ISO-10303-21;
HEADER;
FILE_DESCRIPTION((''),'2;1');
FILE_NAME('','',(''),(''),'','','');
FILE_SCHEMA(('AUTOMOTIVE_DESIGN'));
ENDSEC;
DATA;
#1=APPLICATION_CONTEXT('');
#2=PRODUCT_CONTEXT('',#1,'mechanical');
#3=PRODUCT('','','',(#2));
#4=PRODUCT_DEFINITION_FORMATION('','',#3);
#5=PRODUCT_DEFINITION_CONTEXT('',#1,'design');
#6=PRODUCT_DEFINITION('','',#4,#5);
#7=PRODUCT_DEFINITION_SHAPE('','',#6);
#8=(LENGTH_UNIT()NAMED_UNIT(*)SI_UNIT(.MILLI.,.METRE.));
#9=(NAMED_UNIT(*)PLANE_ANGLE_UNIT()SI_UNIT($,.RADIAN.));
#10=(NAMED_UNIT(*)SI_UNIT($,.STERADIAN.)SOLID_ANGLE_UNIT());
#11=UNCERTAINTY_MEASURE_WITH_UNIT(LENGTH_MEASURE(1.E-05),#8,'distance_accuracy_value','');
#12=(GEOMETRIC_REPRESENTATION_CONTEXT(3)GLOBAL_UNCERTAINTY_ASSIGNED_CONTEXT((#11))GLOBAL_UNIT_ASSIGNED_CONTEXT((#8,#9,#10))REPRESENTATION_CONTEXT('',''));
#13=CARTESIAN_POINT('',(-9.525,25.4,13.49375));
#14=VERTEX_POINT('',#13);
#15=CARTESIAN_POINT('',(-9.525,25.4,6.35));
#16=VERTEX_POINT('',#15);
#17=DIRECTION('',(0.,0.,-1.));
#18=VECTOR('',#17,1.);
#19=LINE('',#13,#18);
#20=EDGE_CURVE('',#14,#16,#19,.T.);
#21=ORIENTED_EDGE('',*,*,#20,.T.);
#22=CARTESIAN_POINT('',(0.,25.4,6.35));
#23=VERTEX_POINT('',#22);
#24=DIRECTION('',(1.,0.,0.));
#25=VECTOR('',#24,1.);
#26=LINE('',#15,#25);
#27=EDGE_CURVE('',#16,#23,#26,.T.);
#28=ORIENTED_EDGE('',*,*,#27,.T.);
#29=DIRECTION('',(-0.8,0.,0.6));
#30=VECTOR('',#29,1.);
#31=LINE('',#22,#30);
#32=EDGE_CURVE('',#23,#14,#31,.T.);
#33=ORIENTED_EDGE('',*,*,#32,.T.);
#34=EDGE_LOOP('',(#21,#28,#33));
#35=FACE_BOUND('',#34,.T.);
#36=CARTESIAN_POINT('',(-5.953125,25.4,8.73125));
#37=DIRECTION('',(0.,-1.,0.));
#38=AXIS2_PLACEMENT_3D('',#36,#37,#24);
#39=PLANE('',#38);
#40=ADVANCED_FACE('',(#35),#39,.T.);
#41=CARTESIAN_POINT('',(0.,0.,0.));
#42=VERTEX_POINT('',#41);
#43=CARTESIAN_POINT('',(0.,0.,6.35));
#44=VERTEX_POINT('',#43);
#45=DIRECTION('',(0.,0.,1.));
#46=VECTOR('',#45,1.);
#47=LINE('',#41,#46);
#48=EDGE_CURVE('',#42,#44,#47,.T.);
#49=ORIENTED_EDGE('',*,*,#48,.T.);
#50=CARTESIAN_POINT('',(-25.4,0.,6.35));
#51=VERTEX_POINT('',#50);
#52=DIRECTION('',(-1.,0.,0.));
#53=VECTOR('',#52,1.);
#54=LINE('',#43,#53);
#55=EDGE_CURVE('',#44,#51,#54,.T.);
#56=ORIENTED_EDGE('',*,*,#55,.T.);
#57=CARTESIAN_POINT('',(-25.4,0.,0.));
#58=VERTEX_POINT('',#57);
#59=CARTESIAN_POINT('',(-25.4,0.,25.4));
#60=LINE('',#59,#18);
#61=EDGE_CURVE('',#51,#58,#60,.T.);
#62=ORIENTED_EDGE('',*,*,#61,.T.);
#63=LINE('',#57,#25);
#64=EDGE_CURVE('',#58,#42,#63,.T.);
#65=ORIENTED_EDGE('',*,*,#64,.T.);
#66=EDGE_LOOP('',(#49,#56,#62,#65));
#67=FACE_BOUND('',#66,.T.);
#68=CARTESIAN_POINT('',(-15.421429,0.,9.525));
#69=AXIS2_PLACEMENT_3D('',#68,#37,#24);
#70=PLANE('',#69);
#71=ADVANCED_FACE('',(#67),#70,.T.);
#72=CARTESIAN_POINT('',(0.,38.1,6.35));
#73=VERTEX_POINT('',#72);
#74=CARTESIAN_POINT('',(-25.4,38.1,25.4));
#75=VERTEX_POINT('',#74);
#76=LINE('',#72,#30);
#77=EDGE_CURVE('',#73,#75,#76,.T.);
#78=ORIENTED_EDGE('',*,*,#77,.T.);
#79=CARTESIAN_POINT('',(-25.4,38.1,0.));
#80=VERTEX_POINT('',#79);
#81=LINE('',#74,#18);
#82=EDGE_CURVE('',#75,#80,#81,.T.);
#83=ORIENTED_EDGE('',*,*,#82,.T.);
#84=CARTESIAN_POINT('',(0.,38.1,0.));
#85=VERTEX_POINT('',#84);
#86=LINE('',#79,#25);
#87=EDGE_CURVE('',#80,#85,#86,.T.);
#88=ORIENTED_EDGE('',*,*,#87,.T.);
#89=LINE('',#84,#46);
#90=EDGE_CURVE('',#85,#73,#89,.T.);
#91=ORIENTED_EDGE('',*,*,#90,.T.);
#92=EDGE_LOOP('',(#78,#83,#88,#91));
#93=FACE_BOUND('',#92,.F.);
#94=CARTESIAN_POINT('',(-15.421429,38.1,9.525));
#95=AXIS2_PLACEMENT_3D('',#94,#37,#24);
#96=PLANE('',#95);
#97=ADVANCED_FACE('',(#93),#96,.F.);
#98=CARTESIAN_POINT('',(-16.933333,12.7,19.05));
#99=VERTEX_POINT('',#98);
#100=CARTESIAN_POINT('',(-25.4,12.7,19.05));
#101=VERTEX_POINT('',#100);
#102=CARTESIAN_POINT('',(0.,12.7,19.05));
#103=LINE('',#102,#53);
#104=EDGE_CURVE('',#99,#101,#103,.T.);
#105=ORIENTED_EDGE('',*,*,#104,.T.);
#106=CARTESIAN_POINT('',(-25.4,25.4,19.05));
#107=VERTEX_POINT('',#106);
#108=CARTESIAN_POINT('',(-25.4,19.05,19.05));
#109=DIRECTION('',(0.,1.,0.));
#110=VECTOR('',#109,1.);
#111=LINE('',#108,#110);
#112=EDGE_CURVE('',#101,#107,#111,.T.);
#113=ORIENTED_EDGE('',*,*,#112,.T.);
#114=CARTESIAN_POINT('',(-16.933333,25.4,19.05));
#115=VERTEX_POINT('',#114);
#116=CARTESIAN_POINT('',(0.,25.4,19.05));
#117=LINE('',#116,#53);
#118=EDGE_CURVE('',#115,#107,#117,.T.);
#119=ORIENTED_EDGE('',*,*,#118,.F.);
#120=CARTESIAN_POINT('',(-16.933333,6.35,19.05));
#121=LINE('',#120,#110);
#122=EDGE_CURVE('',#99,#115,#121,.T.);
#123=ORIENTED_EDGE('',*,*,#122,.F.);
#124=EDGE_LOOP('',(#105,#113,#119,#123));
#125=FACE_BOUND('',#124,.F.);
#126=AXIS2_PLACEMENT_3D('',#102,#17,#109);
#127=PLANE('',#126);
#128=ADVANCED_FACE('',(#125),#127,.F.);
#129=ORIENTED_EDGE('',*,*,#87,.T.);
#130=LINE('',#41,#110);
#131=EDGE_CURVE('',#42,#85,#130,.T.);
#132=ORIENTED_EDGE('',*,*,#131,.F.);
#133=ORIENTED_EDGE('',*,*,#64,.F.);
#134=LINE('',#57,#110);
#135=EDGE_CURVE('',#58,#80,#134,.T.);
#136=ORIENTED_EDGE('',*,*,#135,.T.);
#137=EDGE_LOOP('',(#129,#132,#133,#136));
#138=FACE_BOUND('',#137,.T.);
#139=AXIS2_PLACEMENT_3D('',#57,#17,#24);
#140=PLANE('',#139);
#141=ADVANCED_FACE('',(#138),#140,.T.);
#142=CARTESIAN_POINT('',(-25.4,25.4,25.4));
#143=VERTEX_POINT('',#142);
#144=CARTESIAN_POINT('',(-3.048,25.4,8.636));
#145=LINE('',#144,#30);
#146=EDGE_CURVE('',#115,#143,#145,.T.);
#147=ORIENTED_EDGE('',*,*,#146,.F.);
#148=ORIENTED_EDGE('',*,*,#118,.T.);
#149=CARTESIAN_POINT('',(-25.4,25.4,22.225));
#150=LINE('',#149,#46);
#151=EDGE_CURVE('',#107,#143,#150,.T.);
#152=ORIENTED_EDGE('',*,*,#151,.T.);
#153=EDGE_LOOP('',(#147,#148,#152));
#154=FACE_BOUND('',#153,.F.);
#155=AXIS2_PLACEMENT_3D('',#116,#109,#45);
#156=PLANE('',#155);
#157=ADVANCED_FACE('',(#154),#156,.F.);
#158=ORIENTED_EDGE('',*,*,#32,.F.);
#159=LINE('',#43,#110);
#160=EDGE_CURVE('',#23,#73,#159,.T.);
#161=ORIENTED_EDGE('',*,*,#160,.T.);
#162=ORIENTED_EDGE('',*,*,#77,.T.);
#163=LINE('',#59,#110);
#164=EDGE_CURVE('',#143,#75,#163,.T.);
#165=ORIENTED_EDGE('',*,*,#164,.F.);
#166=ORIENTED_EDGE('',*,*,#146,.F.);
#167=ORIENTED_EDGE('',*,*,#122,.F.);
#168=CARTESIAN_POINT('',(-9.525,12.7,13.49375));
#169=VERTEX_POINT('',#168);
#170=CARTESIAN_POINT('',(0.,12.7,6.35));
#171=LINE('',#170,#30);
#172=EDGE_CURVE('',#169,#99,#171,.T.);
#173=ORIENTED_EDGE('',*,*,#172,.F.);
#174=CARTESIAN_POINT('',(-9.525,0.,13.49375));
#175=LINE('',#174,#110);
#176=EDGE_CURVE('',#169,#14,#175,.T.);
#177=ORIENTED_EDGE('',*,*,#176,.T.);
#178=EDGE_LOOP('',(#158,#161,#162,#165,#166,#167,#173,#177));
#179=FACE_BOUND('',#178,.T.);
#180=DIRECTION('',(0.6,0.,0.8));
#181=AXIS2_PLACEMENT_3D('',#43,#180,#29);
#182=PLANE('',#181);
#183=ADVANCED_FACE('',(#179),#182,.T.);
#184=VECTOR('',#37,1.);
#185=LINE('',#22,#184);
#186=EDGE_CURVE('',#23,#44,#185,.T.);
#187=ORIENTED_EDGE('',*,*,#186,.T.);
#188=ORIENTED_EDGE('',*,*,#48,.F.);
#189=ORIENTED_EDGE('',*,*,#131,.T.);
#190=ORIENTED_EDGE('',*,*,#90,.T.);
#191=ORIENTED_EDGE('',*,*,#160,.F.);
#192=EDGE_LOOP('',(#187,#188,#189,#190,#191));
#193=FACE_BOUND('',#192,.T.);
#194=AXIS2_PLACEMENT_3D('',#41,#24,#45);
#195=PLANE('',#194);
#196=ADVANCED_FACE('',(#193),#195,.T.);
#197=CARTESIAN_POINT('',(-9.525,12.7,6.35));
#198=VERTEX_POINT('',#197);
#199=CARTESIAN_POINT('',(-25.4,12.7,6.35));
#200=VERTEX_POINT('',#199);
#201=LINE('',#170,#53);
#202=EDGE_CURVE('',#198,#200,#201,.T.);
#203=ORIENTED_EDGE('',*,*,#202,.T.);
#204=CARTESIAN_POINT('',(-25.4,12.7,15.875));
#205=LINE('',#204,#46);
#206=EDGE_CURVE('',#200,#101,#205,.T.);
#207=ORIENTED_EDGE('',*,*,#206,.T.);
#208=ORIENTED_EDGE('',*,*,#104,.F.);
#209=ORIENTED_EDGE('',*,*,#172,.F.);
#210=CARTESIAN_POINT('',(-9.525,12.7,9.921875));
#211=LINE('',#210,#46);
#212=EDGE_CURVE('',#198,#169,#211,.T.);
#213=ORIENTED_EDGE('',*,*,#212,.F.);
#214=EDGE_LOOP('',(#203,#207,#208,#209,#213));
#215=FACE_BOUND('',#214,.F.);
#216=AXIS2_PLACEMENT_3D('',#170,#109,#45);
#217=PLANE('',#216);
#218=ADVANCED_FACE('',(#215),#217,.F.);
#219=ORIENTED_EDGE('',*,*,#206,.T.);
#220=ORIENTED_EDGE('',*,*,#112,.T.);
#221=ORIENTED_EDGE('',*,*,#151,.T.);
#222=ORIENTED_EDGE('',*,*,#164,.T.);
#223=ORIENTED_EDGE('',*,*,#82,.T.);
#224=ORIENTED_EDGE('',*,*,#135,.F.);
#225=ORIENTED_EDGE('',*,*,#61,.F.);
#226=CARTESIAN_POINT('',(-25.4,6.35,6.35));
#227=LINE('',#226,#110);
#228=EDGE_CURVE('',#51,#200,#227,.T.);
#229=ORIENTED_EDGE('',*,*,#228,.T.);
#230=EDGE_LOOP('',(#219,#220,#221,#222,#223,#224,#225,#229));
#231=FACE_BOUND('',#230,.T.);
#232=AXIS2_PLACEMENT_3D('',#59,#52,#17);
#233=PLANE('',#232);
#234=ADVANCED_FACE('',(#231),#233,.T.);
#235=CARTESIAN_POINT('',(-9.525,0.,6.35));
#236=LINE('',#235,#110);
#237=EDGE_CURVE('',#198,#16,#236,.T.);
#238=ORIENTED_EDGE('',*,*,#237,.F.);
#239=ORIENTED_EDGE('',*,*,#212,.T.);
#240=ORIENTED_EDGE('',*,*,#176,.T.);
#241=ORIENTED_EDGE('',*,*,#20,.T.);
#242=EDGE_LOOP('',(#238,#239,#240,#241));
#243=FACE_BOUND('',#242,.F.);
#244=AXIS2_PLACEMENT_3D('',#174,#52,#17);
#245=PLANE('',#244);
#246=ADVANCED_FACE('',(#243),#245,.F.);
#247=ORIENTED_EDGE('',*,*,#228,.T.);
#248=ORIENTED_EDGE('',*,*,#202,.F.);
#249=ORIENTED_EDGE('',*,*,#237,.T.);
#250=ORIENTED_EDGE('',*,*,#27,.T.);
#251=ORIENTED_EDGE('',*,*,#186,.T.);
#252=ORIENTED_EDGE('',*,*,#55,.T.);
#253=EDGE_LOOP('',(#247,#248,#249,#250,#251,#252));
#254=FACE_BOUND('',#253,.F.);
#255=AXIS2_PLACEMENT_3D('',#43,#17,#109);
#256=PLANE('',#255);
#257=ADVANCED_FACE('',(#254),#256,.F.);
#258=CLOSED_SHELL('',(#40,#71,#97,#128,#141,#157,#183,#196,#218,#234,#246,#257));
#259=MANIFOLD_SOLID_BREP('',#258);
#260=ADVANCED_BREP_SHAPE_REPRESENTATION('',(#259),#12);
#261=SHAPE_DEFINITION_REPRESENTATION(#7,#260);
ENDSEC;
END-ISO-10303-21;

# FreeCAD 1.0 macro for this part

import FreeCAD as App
import Part
import Sketcher
Q = App.Units.Quantity

doc = App.newDocument("Part")
body = doc.addObject("PartDesign::Body", "Body")

sketch1 = body.newObject("Sketcher::SketchObject", "Sketch")
sketch1.AttachmentSupport = (doc.getObject("XZ_Plane"), [""])
sketch1.MapMode = "FlatFace"
sketch1.addGeometry([
    Part.LineSegment(App.Vector(-25, 0, 0), App.Vector(0, 0, 0)),
    Part.LineSegment(App.Vector(0, 0, 0), App.Vector(0, 6, 0)),
    Part.LineSegment(App.Vector(0, 6, 0), App.Vector(-25, 25, 0)),
    Part.LineSegment(App.Vector(-25, 25, 0), App.Vector(-25, 0, 0)),
], False)
sketch1.addConstraint([
    Sketcher.Constraint("Coincident", 0, 2, 1, 1),
    Sketcher.Constraint("Coincident", 1, 2, 2, 1),
    Sketcher.Constraint("Coincident", 2, 2, 3, 1),
    Sketcher.Constraint("Coincident", 3, 2, 0, 1),
    Sketcher.Constraint("Horizontal", 0),
    Sketcher.Constraint("Vertical", 1),
    Sketcher.Constraint("Vertical", 3),
    Sketcher.Constraint("Coincident", 0, 2, -1, 1),
    Sketcher.Constraint("Equal", 0, 3),
    Sketcher.Constraint("DistanceX", 0, 1, 0, 2, Q("1 in")),
    Sketcher.Constraint("DistanceY", 1, 1, 1, 2, Q("0.25 in")),
])
pad1 = body.newObject("PartDesign::Pad", "Pad")
pad1.Profile = sketch1
pad1.Length = Q("1.5 in")
pad1.Reversed = True

sketch2 = body.newObject("Sketcher::SketchObject", "Sketch001")
sketch2.AttachmentSupport = (doc.getObject("YZ_Plane"), [""])
sketch2.MapMode = "FlatFace"
sketch2.addGeometry([
    Part.LineSegment(App.Vector(0, 25, 0), App.Vector(0, 6, 0)),
    Part.LineSegment(App.Vector(0, 6, 0), App.Vector(13, 6, 0)),
    Part.LineSegment(App.Vector(13, 6, 0), App.Vector(13, 25, 0)),
    Part.LineSegment(App.Vector(13, 25, 0), App.Vector(0, 25, 0)),
], False)
sketch2.addConstraint([
    Sketcher.Constraint("Coincident", 0, 2, 1, 1),
    Sketcher.Constraint("Coincident", 1, 2, 2, 1),
    Sketcher.Constraint("Coincident", 2, 2, 3, 1),
    Sketcher.Constraint("Coincident", 3, 2, 0, 1),
    Sketcher.Constraint("Vertical", 0),
    Sketcher.Constraint("Horizontal", 1),
    Sketcher.Constraint("Vertical", 2),
    Sketcher.Constraint("Horizontal", 3),
    Sketcher.Constraint("PointOnObject", 0, 2, -2),
    Sketcher.Constraint("DistanceX", 1, 1, 1, 2, Q("0.5 in")),
    Sketcher.Constraint("DistanceY", -1, 1, 2, 2, Q("1 in")),
    Sketcher.Constraint("DistanceY", 0, 2, 0, 1, Q("0.75 in")),
])
pocket1 = body.newObject("PartDesign::Pocket", "Pocket")
pocket1.Profile = sketch2
pocket1.Length = Q("1 in")

sketch3 = body.newObject("Sketcher::SketchObject", "Sketch002")
sketch3.AttachmentSupport = (doc.getObject("YZ_Plane"), [""])
sketch3.MapMode = "FlatFace"
sketch3.addGeometry([
    Part.LineSegment(App.Vector(13, 25, 0), App.Vector(13, 19, 0)),
    Part.LineSegment(App.Vector(13, 19, 0), App.Vector(25, 19, 0)),
    Part.LineSegment(App.Vector(25, 19, 0), App.Vector(25, 25, 0)),
    Part.LineSegment(App.Vector(25, 25, 0), App.Vector(13, 25, 0)),
], False)
sketch3.addConstraint([
    Sketcher.Constraint("Coincident", 0, 2, 1, 1),
    Sketcher.Constraint("Coincident", 1, 2, 2, 1),
    Sketcher.Constraint("Coincident", 2, 2, 3, 1),
    Sketcher.Constraint("Coincident", 3, 2, 0, 1),
    Sketcher.Constraint("Vertical", 0),
    Sketcher.Constraint("Horizontal", 1),
    Sketcher.Constraint("Vertical", 2),
    Sketcher.Constraint("Horizontal", 3),
    Sketcher.Constraint("DistanceX", 1, 1, 1, 2, Q("0.5 in")),
    Sketcher.Constraint("DistanceX", -1, 1, 1, 2, Q("1 in")),
    Sketcher.Constraint("DistanceY", -1, 1, 2, 2, Q("1 in")),
    Sketcher.Constraint("DistanceY", 0, 2, 0, 1, Q("0.25 in")),
])
pocket2 = body.newObject("PartDesign::Pocket", "Pocket001")
pocket2.Profile = sketch3
pocket2.Length = Q("1 in")

sketch4 = body.newObject("Sketcher::SketchObject", "Sketch003")
sketch4.AttachmentSupport = (doc.getObject("XZ_Plane"), [""])
sketch4.MapMode = "FlatFace"
sketch4.addGeometry([
    Part.LineSegment(App.Vector(0, 6, 0), App.Vector(-10, 13, 0)),
    Part.LineSegment(App.Vector(-10, 13, 0), App.Vector(-10, 6, 0)),
    Part.LineSegment(App.Vector(-10, 6, 0), App.Vector(0, 6, 0)),
], False)
sketch4.addConstraint([
    Sketcher.Constraint("Coincident", 0, 2, 1, 1),
    Sketcher.Constraint("Coincident", 1, 2, 2, 1),
    Sketcher.Constraint("Coincident", 2, 2, 0, 1),
    Sketcher.Constraint("Vertical", 1),
    Sketcher.Constraint("Horizontal", 2),
    Sketcher.Constraint("PointOnObject", 2, 2, -2),
    Sketcher.Constraint("DistanceX", 2, 1, 2, 2, Q("0.375 in")),
    Sketcher.Constraint("DistanceY", 1, 2, 1, 1, Q("0.28125 in")),
    Sketcher.Constraint("DistanceY", -1, 1, 1, 2, Q("0.25 in")),
])
pocket3 = body.newObject("PartDesign::Pocket", "Pocket002")
pocket3.Profile = sketch4
pocket3.Length = Q("1 in")

doc.recompute()
